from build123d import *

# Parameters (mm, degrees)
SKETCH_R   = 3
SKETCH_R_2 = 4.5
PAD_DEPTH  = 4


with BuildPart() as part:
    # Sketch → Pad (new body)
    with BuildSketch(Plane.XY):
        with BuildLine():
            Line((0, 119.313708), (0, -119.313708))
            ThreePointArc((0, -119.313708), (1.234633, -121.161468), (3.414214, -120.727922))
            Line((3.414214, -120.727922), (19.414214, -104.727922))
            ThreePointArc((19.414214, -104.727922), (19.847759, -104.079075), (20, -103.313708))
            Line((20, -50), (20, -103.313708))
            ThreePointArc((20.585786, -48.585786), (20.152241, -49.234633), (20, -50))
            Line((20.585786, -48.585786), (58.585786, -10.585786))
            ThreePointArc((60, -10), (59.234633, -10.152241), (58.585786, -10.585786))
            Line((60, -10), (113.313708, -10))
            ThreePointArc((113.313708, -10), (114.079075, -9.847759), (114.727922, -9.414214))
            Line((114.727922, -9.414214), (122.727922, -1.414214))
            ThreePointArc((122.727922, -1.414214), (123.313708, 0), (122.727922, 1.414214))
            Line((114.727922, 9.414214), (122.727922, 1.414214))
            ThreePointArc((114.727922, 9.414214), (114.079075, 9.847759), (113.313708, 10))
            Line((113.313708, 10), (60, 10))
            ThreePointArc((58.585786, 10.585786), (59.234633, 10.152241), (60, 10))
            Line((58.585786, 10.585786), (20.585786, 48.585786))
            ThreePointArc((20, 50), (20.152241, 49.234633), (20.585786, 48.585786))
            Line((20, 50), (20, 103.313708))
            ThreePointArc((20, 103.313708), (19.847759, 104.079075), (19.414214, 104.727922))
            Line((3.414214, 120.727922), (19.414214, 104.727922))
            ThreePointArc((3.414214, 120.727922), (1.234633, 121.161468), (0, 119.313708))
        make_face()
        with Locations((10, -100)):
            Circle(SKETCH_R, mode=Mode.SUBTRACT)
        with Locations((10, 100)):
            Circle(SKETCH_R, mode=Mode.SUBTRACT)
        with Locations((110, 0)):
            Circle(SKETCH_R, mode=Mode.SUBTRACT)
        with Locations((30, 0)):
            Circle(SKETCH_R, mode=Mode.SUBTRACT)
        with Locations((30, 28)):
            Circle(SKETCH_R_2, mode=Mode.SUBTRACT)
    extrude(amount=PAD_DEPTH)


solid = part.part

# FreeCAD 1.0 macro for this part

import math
import FreeCAD as App
import Part
import Sketcher

V = App.Vector

doc = App.newDocument("Part")
body = doc.addObject("PartDesign::Body", "Body")

# Sketch on XY plane
sketch1 = body.newObject("Sketcher::SketchObject", "Sketch")
sketch1.AttachmentSupport = (doc.getObject("XY_Plane"), [""])
sketch1.MapMode = "FlatFace"
sketch1.addGeometry([
    Part.LineSegment(V(0, 119.3, 0), V(0, -119.3, 0)),  # 0
    Part.ArcOfCircle(Part.Circle(V(2, -119.3, 0), V(0, 0, 1), 2), math.radians(180), math.radians(315)),  # 1
    Part.LineSegment(V(3.4, -120.7, 0), V(19.4, -104.7, 0)),  # 2
    Part.ArcOfCircle(Part.Circle(V(18, -103.3, 0), V(0, 0, 1), 2), math.radians(-45), math.radians(0)),  # 3
    Part.LineSegment(V(20, -103.3, 0), V(20, -50, 0)),  # 4
    Part.ArcOfCircle(Part.Circle(V(22, -50, 0), V(0, 0, 1), 2), math.radians(135), math.radians(180)),  # 5
    Part.LineSegment(V(20.6, -48.6, 0), V(58.6, -10.6, 0)),  # 6
    Part.ArcOfCircle(Part.Circle(V(60, -12, 0), V(0, 0, 1), 2), math.radians(90), math.radians(135)),  # 7
    Part.LineSegment(V(60, -10, 0), V(113.3, -10, 0)),  # 8
    Part.ArcOfCircle(Part.Circle(V(113.3, -8, 0), V(0, 0, 1), 2), math.radians(-90), math.radians(-45)),  # 9
    Part.LineSegment(V(114.7, -9.4, 0), V(122.7, -1.4, 0)),  # 10
    Part.ArcOfCircle(Part.Circle(V(121.3, 0, 0), V(0, 0, 1), 2), math.radians(-45), math.radians(45)),  # 11
    Part.LineSegment(V(122.7, 1.4, 0), V(114.7, 9.4, 0)),  # 12
    Part.ArcOfCircle(Part.Circle(V(113.3, 8, 0), V(0, 0, 1), 2), math.radians(45), math.radians(90)),  # 13
    Part.LineSegment(V(113.3, 10, 0), V(60, 10, 0)),  # 14
    Part.ArcOfCircle(Part.Circle(V(60, 12, 0), V(0, 0, 1), 2), math.radians(-135), math.radians(-90)),  # 15
    Part.LineSegment(V(58.6, 10.6, 0), V(20.6, 48.6, 0)),  # 16
    Part.ArcOfCircle(Part.Circle(V(22, 50, 0), V(0, 0, 1), 2), math.radians(-180), math.radians(-135)),  # 17
    Part.LineSegment(V(20, 50, 0), V(20, 103.3, 0)),  # 18
    Part.ArcOfCircle(Part.Circle(V(18, 103.3, 0), V(0, 0, 1), 2), math.radians(0), math.radians(45)),  # 19
    Part.LineSegment(V(19.4, 104.7, 0), V(3.4, 120.7, 0)),  # 20
    Part.ArcOfCircle(Part.Circle(V(2, 119.3, 0), V(0, 0, 1), 2), math.radians(45), math.radians(180)),  # 21
    Part.Circle(V(10, -100, 0), V(0, 0, 1), 3),  # 22
    Part.Circle(V(30, 0, 0), V(0, 0, 1), 3),  # 23
    Part.Circle(V(110, 0, 0), V(0, 0, 1), 3),  # 24
    Part.Circle(V(30, 28, 0), V(0, 0, 1), 4.5),  # 25
    Part.Circle(V(10, 100, 0), V(0, 0, 1), 3),  # 26
], False)
sketch1.addConstraint([
    Sketcher.Constraint("Tangent", 0, 2, 1, 1),
    Sketcher.Constraint("Tangent", 1, 2, 2, 1),
    Sketcher.Constraint("Tangent", 2, 2, 3, 1),
    Sketcher.Constraint("Tangent", 3, 2, 4, 1),
    Sketcher.Constraint("Tangent", 4, 2, 5, 2),
    Sketcher.Constraint("Tangent", 5, 1, 6, 1),
    Sketcher.Constraint("Tangent", 6, 2, 7, 2),
    Sketcher.Constraint("Tangent", 7, 1, 8, 1),
    Sketcher.Constraint("Tangent", 8, 2, 9, 1),
    Sketcher.Constraint("Tangent", 9, 2, 10, 1),
    Sketcher.Constraint("Tangent", 10, 2, 11, 1),
    Sketcher.Constraint("Tangent", 11, 2, 12, 1),
    Sketcher.Constraint("Tangent", 12, 2, 13, 1),
    Sketcher.Constraint("Tangent", 13, 2, 14, 1),
    Sketcher.Constraint("Tangent", 14, 2, 15, 2),
    Sketcher.Constraint("Tangent", 15, 1, 16, 1),
    Sketcher.Constraint("Tangent", 16, 2, 17, 2),
    Sketcher.Constraint("Tangent", 17, 1, 18, 1),
    Sketcher.Constraint("Tangent", 18, 2, 19, 1),
    Sketcher.Constraint("Tangent", 19, 2, 20, 1),
    Sketcher.Constraint("Tangent", 20, 2, 21, 1),
    Sketcher.Constraint("Tangent", 21, 2, 0, 1),
    Sketcher.Constraint("Vertical", 0),
    Sketcher.Constraint("Vertical", 4),
    Sketcher.Constraint("Horizontal", 8),
    Sketcher.Constraint("Horizontal", 14),
    Sketcher.Constraint("Vertical", 18),
    Sketcher.Constraint("Equal", 3, 5),
    Sketcher.Constraint("Equal", 5, 7),
    Sketcher.Constraint("Equal", 7, 9),
    Sketcher.Constraint("Equal", 9, 13),
    Sketcher.Constraint("Equal", 13, 15),
    Sketcher.Constraint("Equal", 15, 17),
    Sketcher.Constraint("Equal", 17, 19),
    Sketcher.Constraint("Equal", 1, 21),
    Sketcher.Constraint("Equal", 22, 23),
    Sketcher.Constraint("Equal", 23, 24),
    Sketcher.Constraint("Equal", 24, 26),
    Sketcher.Constraint("Symmetric", 0, 2, 21, 2, -1, 1),
    Sketcher.Constraint("Symmetric", 9, 3, 13, 3, -1),
    Sketcher.Constraint("Symmetric", 5, 3, 17, 3, -1),
    Sketcher.Constraint("Symmetric", 22, 3, 26, 3, -1),
    Sketcher.Constraint("PointOnObject", 11, 3, -1),
    Sketcher.Constraint("PointOnObject", 23, 3, -1),
    Sketcher.Constraint("PointOnObject", 24, 3, -1),
    Sketcher.Constraint("Parallel", 2, 6),
    Sketcher.Constraint("Parallel", 6, 10),
    Sketcher.Constraint("Perpendicular", 10, 12),
    Sketcher.Constraint("Parallel", 12, 16),
    Sketcher.Constraint("Parallel", 16, 20),
    Sketcher.Constraint("Vertical", 23, 3, 25, 3),
    Sketcher.Constraint("Equal", 14, 4),
    Sketcher.Constraint("Diameter", 22, 6.0),
    Sketcher.Constraint("Diameter", 25, 9.0),
    Sketcher.Constraint("Radius", 1, 2.0),
    Sketcher.Constraint("DistanceY", 5, 3, -1, 1, 50.000001),
    Sketcher.Constraint("DistanceX", -1, 1, 7, 3, 60.000001),
    Sketcher.Constraint("DistanceX", -1, 1, 22, 3, 10.0),
    Sketcher.Constraint("DistanceY", 22, 3, -1, 1, 100.0),
    Sketcher.Constraint("DistanceX", -1, 1, 23, 3, 30.0),
    Sketcher.Constraint("DistanceX", -1, 1, 24, 3, 110.0),
    Sketcher.Constraint("DistanceY", -1, 1, 25, 3, 28.0),
    Sketcher.Constraint("DistanceX", -1, 1, 3, 2, 20.0),
    Sketcher.Constraint("DistanceY", 1, 3, 3, 3, 16.000002),
    Sketcher.Constraint("DistanceX", 9, 3, 11, 3, 7.999999),
    Sketcher.Constraint("DistanceX", 8, 1, 8, 2, 53.313708),
])
pad1 = body.newObject("PartDesign::Pad", "Pad")
pad1.Profile = sketch1
pad1.Length = 4

doc.recompute()
